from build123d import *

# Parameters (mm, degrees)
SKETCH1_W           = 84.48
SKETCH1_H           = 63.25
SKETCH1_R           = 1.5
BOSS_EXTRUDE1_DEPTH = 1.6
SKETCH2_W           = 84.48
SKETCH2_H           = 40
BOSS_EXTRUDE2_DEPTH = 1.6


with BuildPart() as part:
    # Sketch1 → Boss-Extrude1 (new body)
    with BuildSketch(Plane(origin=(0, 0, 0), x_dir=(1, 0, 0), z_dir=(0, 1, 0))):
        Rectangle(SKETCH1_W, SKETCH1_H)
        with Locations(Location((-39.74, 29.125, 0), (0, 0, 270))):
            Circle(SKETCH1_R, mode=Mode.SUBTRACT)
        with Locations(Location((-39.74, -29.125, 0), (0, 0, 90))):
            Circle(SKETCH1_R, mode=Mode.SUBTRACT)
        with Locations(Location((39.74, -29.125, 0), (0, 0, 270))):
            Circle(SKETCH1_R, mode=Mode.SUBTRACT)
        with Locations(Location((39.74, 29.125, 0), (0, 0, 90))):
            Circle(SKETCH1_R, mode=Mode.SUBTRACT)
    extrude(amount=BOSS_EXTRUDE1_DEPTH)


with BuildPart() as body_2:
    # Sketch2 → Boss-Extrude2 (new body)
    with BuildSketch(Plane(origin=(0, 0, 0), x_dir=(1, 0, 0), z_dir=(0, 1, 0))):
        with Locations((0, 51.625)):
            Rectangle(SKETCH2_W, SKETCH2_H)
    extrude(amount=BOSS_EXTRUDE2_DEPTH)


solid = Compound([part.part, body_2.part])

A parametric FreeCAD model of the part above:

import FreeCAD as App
import Part
import Sketcher

V = App.Vector
Q = App.Units.Quantity

doc = App.newDocument("Part")
body = doc.addObject("PartDesign::Body", "Body")

sketch1 = body.newObject("Sketcher::SketchObject", "Sketch")
sketch1.AttachmentSupport = (doc.getObject("XZ_Plane"), [""])
sketch1.MapMode = "FlatFace"
sketch1.addGeometry([
    Part.LineSegment(V(-42.2, -31.6, 0), V(-42.2, 31.6, 0)),
    Part.LineSegment(V(-42.2, 31.6, 0), V(42.2, 31.6, 0)),
    Part.LineSegment(V(42.2, 31.6, 0), V(42.2, -31.6, 0)),
    Part.LineSegment(V(42.2, -31.6, 0), V(-42.2, -31.6, 0)),
    Part.Circle(V(-39.7, 29.1, 0), V(0, 0, 1), 1.5),
    Part.Circle(V(39.7, 29.1, 0), V(0, 0, 1), 1.5),
    Part.Circle(V(-39.7, -29.1, 0), V(0, 0, 1), 1.5),
    Part.Circle(V(39.7, -29.1, 0), V(0, 0, 1), 1.5),
], False)
sketch1.addConstraint([
    Sketcher.Constraint("Coincident", 0, 2, 1, 1),
    Sketcher.Constraint("Coincident", 1, 2, 2, 1),
    Sketcher.Constraint("Coincident", 2, 2, 3, 1),
    Sketcher.Constraint("Coincident", 3, 2, 0, 1),
    Sketcher.Constraint("Vertical", 0),
    Sketcher.Constraint("Horizontal", 1),
    Sketcher.Constraint("Vertical", 2),
    Sketcher.Constraint("Horizontal", 3),
    Sketcher.Constraint("Equal", 4, 5),
    Sketcher.Constraint("Equal", 5, 6),
    Sketcher.Constraint("Equal", 6, 7),
    Sketcher.Constraint("Symmetric", 5, 3, 6, 3, -1, 1),
    Sketcher.Constraint("Symmetric", 4, 3, 7, 3, -1, 1),
    Sketcher.Constraint("Symmetric", 0, 2, 2, 2, -1, 1),
    Sketcher.Constraint("Symmetric", 4, 3, 5, 3, -2),
    Sketcher.Constraint("Diameter", 4, Q("3 mm")),
    Sketcher.Constraint("DistanceX", 1, 1, 1, 2, Q("84.48 mm")),
    Sketcher.Constraint("DistanceY", 0, 1, 0, 2, Q("63.25 mm")),
    Sketcher.Constraint("DistanceX", 0, 2, 4, 3, Q("2.5 mm")),
    Sketcher.Constraint("DistanceY", 4, 3, 0, 2, Q("2.5 mm")),
])
pad1 = body.newObject("PartDesign::Pad", "Pad")
pad1.Profile = sketch1
pad1.Length = 1.6
pad1.Reversed = True
body2 = doc.addObject("PartDesign::Body", "Body001")

sketch2 = body2.newObject("Sketcher::SketchObject", "Sketch001")
sketch2.AttachmentSupport = (doc.getObject("XZ_Plane001"), [""])
sketch2.MapMode = "FlatFace"
sketch2.addGeometry([
    Part.LineSegment(V(-42, -72, 0), V(-42, -32, 0)),
    Part.LineSegment(V(-42, -32, 0), V(42, -32, 0)),
    Part.LineSegment(V(42, -32, 0), V(42, -72, 0)),
    Part.LineSegment(V(42, -72, 0), V(-42, -72, 0)),
], False)
sketch2.addConstraint([
    Sketcher.Constraint("Coincident", 0, 2, 1, 1),
    Sketcher.Constraint("Coincident", 1, 2, 2, 1),
    Sketcher.Constraint("Coincident", 2, 2, 3, 1),
    Sketcher.Constraint("Coincident", 3, 2, 0, 1),
    Sketcher.Constraint("Vertical", 0),
    Sketcher.Constraint("Horizontal", 1),
    Sketcher.Constraint("Vertical", 2),
    Sketcher.Constraint("Horizontal", 3),
    Sketcher.Constraint("DistanceY", 0, 1, 0, 2, Q("40 mm")),
    Sketcher.Constraint("DistanceX", 1, 1, 1, 2, Q("84.48 mm")),
    Sketcher.Constraint("DistanceX", 0, 2, -1, 1, Q("42.24 mm")),
    Sketcher.Constraint("DistanceY", 0, 2, -1, 1, Q("31.625 mm")),
])
pad2 = body2.newObject("PartDesign::Pad", "Pad001")
pad2.Profile = sketch2
pad2.Length = 1.6
pad2.Reversed = True

doc.recompute()
